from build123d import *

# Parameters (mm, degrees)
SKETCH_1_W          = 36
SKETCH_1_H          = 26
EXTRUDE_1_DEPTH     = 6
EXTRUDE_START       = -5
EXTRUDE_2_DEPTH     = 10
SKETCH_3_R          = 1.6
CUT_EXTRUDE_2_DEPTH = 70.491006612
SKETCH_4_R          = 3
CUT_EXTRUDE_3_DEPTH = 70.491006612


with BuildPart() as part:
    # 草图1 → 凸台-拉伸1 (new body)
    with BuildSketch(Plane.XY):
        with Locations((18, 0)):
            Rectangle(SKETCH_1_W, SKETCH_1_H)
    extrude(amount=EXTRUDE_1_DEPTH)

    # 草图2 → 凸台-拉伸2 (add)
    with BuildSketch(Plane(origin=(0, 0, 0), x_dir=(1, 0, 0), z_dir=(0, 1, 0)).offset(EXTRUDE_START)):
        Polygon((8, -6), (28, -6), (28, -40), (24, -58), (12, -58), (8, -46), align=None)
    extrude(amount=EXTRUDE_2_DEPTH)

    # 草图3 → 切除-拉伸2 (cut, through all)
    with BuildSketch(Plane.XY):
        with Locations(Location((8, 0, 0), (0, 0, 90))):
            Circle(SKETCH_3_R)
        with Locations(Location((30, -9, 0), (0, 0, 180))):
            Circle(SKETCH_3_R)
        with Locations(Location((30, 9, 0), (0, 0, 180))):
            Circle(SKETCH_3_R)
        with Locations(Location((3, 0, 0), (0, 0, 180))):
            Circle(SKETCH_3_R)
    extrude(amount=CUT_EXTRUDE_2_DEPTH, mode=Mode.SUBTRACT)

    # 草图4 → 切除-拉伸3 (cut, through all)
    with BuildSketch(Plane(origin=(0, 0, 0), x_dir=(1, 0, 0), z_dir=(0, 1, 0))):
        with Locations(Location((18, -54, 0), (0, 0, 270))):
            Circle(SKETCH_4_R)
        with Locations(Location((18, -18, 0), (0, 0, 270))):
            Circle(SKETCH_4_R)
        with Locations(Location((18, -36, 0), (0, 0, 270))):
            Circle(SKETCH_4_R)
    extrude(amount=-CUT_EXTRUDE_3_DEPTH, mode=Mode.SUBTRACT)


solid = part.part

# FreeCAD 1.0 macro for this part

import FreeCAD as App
import Part
import Sketcher


def add_polygon(sketch, points):
    """Adds a closed chain of lines whose ends are joined by coincident constraints."""
    first, n = sketch.GeometryCount, len(points)
    for a, b in zip(points, points[1:] + points[:1]):
        sketch.addGeometry(Part.LineSegment(App.Vector(*a, 0), App.Vector(*b, 0)), False)
    for i in range(n):
        sketch.addConstraint(Sketcher.Constraint("Coincident", first + i, 2, first + (i + 1) % n, 1))

doc = App.newDocument("Part")
body = doc.addObject("PartDesign::Body", "Body")

sketch1 = doc.addObject("Sketcher::SketchObject", "Sketch")
body.addObject(sketch1)
sketch1.AttachmentSupport = (doc.XY_Plane, [""])
sketch1.MapMode = "FlatFace"
add_polygon(sketch1, [(0, 13), (0, -13), (36, -13), (36, 13)])
sketch1.addConstraint([
    Sketcher.Constraint("Vertical", 0),
    Sketcher.Constraint("Horizontal", 1),
    Sketcher.Constraint("Vertical", 2),
    Sketcher.Constraint("Horizontal", 3),
    Sketcher.Constraint("Symmetric", 0, 2, 3, 2, -1, 1),
    Sketcher.Constraint("DistanceX", 1, 1, 1, 2, 36.0),
    Sketcher.Constraint("DistanceY", 0, 2, 0, 1, 26.0),
])
pad1 = doc.addObject("PartDesign::Pad", "Pad")
body.addObject(pad1)
pad1.Profile = sketch1
pad1.Length = 6

sketch2 = doc.addObject("Sketcher::SketchObject", "Sketch001")
body.addObject(sketch2)
sketch2.AttachmentSupport = (doc.XZ_Plane, [""])
sketch2.MapMode = "FlatFace"
sketch2.AttachmentOffset = App.Placement(App.Vector(0, 0, 5), App.Rotation())
add_polygon(sketch2, [(28, 6), (8, 6), (8, 46), (12, 58), (24, 58), (28, 40)])
sketch2.addConstraint([
    Sketcher.Constraint("Horizontal", 0),
    Sketcher.Constraint("Vertical", 1),
    Sketcher.Constraint("Horizontal", 3),
    Sketcher.Constraint("Vertical", 5),
    Sketcher.Constraint("DistanceX", 0, 2, 0, 1, 20.0),
    Sketcher.Constraint("DistanceX", 3, 1, 3, 2, 12.0),
    Sketcher.Constraint("DistanceY", 1, 1, 1, 2, 40.0),
    Sketcher.Constraint("DistanceY", 5, 2, 5, 1, 34.0),
    Sketcher.Constraint("DistanceX", -1, 1, 0, 2, 8.0),
    Sketcher.Constraint("DistanceY", -1, 1, 0, 2, 6.0),
    Sketcher.Constraint("DistanceX", -1, 1, 2, 2, 12.0),
    Sketcher.Constraint("DistanceY", -1, 1, 2, 2, 58.0),
])
pad2 = doc.addObject("PartDesign::Pad", "Pad001")
body.addObject(pad2)
pad2.Profile = sketch2
pad2.Length = 10
pad2.Reversed = True

sketch3 = doc.addObject("Sketcher::SketchObject", "Sketch002")
body.addObject(sketch3)
sketch3.AttachmentSupport = (doc.XY_Plane, [""])
sketch3.MapMode = "FlatFace"
sketch3.addGeometry([
    Part.Circle(App.Vector(8, 0, 0), App.Vector(0, 0, 1), 1.6),
    Part.Circle(App.Vector(30, -9, 0), App.Vector(0, 0, 1), 1.6),
    Part.Circle(App.Vector(30, 9, 0), App.Vector(0, 0, 1), 1.6),
    Part.Circle(App.Vector(3, 0, 0), App.Vector(0, 0, 1), 1.6),
], False)
sketch3.addConstraint([
    Sketcher.Constraint("Equal", 0, 1),
    Sketcher.Constraint("Equal", 1, 2),
    Sketcher.Constraint("Equal", 2, 3),
    Sketcher.Constraint("Symmetric", 1, 3, 2, 3, -1),
    Sketcher.Constraint("PointOnObject", 0, 3, -1),
    Sketcher.Constraint("PointOnObject", 3, 3, -1),
    Sketcher.Constraint("Diameter", 0, 3.2),
    Sketcher.Constraint("DistanceX", -1, 1, 0, 3, 8.0),
    Sketcher.Constraint("DistanceX", -1, 1, 1, 3, 30.0),
    Sketcher.Constraint("DistanceY", 1, 3, -1, 1, 9.0),
    Sketcher.Constraint("DistanceX", -1, 1, 3, 3, 3.0),
])
pocket1 = doc.addObject("PartDesign::Pocket", "Pocket")
body.addObject(pocket1)
pocket1.Profile = sketch3
pocket1.Type = "ThroughAll"
pocket1.Reversed = True

sketch4 = doc.addObject("Sketcher::SketchObject", "Sketch003")
body.addObject(sketch4)
sketch4.AttachmentSupport = (doc.XZ_Plane, [""])
sketch4.MapMode = "FlatFace"
sketch4.addGeometry([
    Part.Circle(App.Vector(18, 54, 0), App.Vector(0, 0, 1), 3),
    Part.Circle(App.Vector(18, 18, 0), App.Vector(0, 0, 1), 3),
    Part.Circle(App.Vector(18, 36, 0), App.Vector(0, 0, 1), 3),
], False)
sketch4.addConstraint([
    Sketcher.Constraint("Equal", 0, 1),
    Sketcher.Constraint("Equal", 1, 2),
    Sketcher.Constraint("Vertical", 0, 3, 1, 3),
    Sketcher.Constraint("Vertical", 1, 3, 2, 3),
    Sketcher.Constraint("Diameter", 0, 6.0),
    Sketcher.Constraint("DistanceX", -1, 1, 0, 3, 18.0),
    Sketcher.Constraint("DistanceY", -1, 1, 0, 3, 54.0),
    Sketcher.Constraint("DistanceY", -1, 1, 1, 3, 18.0),
    Sketcher.Constraint("DistanceY", -1, 1, 2, 3, 36.0),
])
pocket2 = doc.addObject("PartDesign::Pocket", "Pocket001")
body.addObject(pocket2)
pocket2.Profile = sketch4
pocket2.Type = "ThroughAll"
pocket2.Reversed = True

doc.recompute()
